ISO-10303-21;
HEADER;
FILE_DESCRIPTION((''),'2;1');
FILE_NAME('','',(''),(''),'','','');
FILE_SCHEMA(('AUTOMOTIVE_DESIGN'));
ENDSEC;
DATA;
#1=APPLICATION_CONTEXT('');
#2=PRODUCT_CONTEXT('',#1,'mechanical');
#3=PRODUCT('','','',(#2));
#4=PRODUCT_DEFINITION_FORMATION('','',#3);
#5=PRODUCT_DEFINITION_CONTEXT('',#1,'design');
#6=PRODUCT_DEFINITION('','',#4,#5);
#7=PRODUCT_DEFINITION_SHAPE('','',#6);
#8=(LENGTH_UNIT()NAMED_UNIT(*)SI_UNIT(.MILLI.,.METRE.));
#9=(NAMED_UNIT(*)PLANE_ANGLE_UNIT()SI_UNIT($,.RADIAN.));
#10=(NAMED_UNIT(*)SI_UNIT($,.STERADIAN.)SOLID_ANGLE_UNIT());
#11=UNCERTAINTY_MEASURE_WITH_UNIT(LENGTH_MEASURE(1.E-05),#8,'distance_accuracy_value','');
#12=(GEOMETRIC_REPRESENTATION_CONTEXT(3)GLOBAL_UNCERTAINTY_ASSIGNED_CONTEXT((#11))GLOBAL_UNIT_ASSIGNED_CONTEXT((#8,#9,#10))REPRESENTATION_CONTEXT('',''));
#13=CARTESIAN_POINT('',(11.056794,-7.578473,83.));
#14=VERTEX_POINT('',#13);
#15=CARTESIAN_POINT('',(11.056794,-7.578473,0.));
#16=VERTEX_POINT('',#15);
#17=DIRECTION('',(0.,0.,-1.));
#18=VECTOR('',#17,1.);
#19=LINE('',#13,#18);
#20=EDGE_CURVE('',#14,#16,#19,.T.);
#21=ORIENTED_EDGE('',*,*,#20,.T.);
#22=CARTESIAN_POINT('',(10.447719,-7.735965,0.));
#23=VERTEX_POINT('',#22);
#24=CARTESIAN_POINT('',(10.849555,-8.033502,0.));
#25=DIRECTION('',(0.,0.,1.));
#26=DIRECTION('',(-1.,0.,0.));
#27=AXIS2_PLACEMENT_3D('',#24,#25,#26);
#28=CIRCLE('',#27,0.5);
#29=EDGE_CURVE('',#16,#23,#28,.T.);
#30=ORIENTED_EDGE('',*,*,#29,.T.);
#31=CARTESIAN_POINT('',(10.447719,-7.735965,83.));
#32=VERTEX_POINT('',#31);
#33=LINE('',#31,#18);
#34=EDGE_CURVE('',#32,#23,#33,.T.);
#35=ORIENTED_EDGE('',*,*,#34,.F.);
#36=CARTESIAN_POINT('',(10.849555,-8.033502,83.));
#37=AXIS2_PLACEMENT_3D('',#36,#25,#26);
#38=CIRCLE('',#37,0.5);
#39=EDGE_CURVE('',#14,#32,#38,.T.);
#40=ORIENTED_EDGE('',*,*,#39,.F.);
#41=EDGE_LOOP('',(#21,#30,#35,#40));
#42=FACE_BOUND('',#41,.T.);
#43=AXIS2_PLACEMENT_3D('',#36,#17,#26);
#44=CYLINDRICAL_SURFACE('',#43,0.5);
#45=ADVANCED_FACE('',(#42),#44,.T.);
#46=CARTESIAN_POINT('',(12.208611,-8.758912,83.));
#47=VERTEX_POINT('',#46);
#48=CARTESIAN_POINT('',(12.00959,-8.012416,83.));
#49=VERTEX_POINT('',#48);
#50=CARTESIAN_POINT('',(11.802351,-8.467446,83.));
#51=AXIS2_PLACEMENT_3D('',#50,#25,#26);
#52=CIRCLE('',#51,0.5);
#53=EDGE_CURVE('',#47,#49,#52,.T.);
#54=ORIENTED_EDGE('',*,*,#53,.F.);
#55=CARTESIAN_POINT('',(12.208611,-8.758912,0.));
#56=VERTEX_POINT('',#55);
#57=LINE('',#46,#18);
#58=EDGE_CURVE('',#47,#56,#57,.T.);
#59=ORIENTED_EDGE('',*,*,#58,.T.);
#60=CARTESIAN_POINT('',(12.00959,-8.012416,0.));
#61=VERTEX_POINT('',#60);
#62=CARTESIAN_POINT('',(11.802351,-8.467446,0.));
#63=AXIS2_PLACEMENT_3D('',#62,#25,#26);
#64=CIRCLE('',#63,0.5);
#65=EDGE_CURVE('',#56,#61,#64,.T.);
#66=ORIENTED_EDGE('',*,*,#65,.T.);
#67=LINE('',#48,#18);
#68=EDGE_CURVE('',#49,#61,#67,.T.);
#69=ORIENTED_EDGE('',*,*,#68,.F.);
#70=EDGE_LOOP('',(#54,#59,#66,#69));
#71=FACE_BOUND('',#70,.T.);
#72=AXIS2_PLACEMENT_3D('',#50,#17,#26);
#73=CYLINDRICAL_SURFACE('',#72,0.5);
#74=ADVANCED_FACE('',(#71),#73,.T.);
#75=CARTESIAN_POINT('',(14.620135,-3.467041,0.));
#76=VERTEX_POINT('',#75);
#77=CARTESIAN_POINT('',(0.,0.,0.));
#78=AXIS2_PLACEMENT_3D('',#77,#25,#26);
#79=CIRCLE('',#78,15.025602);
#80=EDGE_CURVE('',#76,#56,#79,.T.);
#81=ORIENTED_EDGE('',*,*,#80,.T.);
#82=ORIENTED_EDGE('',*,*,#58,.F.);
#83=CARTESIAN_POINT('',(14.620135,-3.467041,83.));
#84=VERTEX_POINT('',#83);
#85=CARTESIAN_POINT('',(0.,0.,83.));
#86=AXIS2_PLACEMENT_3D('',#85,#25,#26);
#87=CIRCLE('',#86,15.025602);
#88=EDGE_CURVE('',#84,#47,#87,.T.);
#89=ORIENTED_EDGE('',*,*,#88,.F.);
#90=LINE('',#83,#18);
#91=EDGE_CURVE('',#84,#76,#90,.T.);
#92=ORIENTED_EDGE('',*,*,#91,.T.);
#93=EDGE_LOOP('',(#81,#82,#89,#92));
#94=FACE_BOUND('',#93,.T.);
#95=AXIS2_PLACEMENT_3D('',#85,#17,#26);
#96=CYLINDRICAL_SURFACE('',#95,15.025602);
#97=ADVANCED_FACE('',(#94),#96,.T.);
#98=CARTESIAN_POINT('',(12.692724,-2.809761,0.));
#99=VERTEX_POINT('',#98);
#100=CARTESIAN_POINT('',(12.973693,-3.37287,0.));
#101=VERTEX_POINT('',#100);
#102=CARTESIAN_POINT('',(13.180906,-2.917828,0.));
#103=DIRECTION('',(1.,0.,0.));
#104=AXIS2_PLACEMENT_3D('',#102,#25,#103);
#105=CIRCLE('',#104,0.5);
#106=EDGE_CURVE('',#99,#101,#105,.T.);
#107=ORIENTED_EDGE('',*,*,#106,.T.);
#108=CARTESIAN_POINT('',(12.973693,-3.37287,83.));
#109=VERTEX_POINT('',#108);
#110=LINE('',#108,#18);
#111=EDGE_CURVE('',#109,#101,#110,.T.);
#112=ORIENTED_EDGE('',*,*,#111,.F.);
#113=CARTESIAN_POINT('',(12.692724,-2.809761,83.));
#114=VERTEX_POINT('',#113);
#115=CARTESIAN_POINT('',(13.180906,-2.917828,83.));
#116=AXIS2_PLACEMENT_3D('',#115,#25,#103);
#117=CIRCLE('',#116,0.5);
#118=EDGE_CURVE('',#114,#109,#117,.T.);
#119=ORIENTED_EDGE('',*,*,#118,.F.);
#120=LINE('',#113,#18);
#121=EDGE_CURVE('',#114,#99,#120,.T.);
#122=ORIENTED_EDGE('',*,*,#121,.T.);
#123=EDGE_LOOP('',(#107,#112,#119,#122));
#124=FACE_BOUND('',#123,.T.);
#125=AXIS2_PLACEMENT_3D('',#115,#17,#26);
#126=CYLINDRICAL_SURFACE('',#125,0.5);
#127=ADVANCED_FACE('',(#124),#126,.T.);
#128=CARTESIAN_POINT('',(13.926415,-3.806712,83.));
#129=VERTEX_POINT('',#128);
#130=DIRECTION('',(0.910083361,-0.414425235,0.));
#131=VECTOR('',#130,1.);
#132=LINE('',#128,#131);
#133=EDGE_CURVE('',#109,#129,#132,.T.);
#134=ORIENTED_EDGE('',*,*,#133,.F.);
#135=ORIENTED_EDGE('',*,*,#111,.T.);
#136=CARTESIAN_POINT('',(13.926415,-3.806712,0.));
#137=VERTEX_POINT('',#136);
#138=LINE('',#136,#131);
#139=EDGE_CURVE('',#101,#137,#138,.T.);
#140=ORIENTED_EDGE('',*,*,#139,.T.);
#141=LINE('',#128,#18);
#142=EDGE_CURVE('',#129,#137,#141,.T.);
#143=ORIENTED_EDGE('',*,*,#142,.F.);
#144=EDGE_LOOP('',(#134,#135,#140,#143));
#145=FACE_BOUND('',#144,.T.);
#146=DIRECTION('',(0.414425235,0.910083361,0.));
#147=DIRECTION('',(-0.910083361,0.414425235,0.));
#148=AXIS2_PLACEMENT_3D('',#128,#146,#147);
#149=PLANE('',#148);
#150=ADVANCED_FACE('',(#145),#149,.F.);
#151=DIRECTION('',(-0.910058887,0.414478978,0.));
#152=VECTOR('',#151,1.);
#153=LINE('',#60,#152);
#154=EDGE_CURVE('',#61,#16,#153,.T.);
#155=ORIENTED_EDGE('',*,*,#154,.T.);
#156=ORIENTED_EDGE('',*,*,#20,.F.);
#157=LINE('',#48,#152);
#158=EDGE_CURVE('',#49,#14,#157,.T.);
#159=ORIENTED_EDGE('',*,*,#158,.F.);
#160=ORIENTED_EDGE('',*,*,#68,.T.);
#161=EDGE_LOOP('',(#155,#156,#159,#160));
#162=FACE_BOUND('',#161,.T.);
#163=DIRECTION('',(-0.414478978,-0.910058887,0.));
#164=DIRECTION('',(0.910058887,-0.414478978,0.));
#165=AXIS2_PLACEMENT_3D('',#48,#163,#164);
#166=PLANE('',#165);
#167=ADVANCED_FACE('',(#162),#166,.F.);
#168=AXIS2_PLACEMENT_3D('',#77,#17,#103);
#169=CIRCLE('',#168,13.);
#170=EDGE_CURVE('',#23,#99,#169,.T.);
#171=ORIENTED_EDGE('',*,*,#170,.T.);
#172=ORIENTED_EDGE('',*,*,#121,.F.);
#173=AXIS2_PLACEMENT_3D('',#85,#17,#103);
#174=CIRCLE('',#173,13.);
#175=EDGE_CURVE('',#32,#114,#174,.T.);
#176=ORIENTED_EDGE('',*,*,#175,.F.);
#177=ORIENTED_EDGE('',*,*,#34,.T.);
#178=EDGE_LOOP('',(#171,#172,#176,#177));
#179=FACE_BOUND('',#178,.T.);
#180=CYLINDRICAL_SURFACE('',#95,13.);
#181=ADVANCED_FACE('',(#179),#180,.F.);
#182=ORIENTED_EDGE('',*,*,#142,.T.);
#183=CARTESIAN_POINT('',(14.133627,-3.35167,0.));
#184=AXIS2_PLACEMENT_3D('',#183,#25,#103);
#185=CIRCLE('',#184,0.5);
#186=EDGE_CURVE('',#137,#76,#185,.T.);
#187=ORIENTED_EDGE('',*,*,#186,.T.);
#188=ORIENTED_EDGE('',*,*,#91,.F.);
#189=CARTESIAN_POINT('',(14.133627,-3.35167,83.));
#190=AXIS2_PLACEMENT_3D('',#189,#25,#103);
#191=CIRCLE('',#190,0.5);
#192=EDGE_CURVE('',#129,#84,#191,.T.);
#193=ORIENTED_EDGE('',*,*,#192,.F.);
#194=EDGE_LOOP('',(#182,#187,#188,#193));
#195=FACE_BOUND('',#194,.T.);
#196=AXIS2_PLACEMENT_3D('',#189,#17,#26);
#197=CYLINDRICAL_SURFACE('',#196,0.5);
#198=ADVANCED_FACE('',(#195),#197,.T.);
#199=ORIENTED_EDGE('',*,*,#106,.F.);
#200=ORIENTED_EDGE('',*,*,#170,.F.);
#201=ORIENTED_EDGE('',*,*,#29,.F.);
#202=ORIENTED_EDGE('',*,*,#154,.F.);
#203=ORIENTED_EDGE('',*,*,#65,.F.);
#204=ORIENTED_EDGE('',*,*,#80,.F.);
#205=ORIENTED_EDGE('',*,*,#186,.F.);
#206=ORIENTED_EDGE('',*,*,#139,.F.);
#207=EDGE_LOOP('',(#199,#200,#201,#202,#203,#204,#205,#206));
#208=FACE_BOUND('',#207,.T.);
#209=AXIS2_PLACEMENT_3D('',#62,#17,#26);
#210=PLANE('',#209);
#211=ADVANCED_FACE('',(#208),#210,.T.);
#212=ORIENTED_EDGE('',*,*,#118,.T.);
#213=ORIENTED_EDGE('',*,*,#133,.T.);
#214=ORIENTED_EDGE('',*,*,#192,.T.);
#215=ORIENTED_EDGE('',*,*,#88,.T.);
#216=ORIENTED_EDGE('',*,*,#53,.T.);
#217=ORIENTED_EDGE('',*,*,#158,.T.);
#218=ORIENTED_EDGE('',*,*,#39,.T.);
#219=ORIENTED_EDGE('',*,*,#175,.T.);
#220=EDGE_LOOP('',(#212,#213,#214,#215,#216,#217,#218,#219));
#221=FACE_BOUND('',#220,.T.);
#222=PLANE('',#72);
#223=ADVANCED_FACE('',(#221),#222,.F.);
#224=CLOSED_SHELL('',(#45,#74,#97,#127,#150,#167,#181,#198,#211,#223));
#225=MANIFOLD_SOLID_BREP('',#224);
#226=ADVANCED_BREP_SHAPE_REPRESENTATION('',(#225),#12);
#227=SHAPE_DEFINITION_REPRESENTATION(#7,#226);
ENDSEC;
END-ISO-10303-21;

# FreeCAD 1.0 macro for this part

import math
import FreeCAD as App
import Part
import Sketcher
from FreeCAD import Vector

doc = App.newDocument("Part")
body = doc.addObject("PartDesign::Body", "Body")

# Sketch on XY plane
sketch1 = doc.addObject("Sketcher::SketchObject", "Sketch")
body.addObject(sketch1)
sketch1.AttachmentSupport = (doc.XY_Plane, [""])
sketch1.MapMode = "FlatFace"
sketch1.addGeometry(Part.LineSegment(Vector(12.97, -3.37, 0), Vector(13.93, -3.81, 0)), False)
sketch1.addGeometry(Part.ArcOfCircle(Part.Circle(Vector(14.13, -3.35, 0), Vector(0, 0, 1), 0.5), math.radians(-114), math.radians(-13)), False)
sketch1.addGeometry(Part.ArcOfCircle(Part.Circle(Vector(0, 0, 0), Vector(0, 0, 1), 15.03), math.radians(-13), math.radians(324)), False)
sketch1.addGeometry(Part.ArcOfCircle(Part.Circle(Vector(11.8, -8.47, 0), Vector(0, 0, 1), 0.5), math.radians(-36), math.radians(66)), False)
sketch1.addGeometry(Part.LineSegment(Vector(12.01, -8.01, 0), Vector(11.06, -7.58, 0)), False)
sketch1.addGeometry(Part.ArcOfCircle(Part.Circle(Vector(10.85, -8.03, 0), Vector(0, 0, 1), 0.5), math.radians(66), math.radians(143)), False)
sketch1.addGeometry(Part.ArcOfCircle(Part.Circle(Vector(0, 0, 0), Vector(0, 0, 1), 13), math.radians(-12), math.radians(323)), False)
sketch1.addGeometry(Part.ArcOfCircle(Part.Circle(Vector(13.18, -2.92, 0), Vector(0, 0, 1), 0.5), math.radians(168), math.radians(246)), False)
sketch1.addConstraint(Sketcher.Constraint("Tangent", 0, 2, 1, 1))
sketch1.addConstraint(Sketcher.Constraint("Tangent", 1, 2, 2, 1))
sketch1.addConstraint(Sketcher.Constraint("Tangent", 2, 2, 3, 1))
sketch1.addConstraint(Sketcher.Constraint("Tangent", 3, 2, 4, 1))
sketch1.addConstraint(Sketcher.Constraint("Tangent", 4, 2, 5, 1))
sketch1.addConstraint(Sketcher.Constraint("Tangent", 5, 2, 6, 2))
sketch1.addConstraint(Sketcher.Constraint("Tangent", 6, 1, 7, 1))
sketch1.addConstraint(Sketcher.Constraint("Tangent", 7, 2, 0, 1))
sketch1.addConstraint(Sketcher.Constraint("Coincident", 2, 3, -1, 1))
sketch1.addConstraint(Sketcher.Constraint("Coincident", 6, 3, -1, 1))
sketch1.addConstraint(Sketcher.Constraint("Equal", 1, 3))
sketch1.addConstraint(Sketcher.Constraint("Equal", 3, 5))
sketch1.addConstraint(Sketcher.Constraint("Equal", 5, 7))
sketch1.addConstraint(Sketcher.Constraint("Radius", 6, 13.0))
sketch1.addConstraint(Sketcher.Constraint("Radius", 1, 0.5))
sketch1.addConstraint(Sketcher.Constraint("Radius", 2, 15.025602))
sketch1.addConstraint(Sketcher.Constraint("DistanceY", 2, 2, 0, 2, 4.9522))
sketch1.addConstraint(Sketcher.Constraint("DistanceY", 7, 2, 1, 3, 0.0212))
sketch1.addConstraint(Sketcher.Constraint("Distance", 0, 1.046851))
sketch1.addConstraint(Sketcher.Constraint("Distance", 4, 1.046961))
pad1 = doc.addObject("PartDesign::Pad", "Pad")
body.addObject(pad1)
pad1.Profile = sketch1
pad1.Length = 83

doc.recompute()
